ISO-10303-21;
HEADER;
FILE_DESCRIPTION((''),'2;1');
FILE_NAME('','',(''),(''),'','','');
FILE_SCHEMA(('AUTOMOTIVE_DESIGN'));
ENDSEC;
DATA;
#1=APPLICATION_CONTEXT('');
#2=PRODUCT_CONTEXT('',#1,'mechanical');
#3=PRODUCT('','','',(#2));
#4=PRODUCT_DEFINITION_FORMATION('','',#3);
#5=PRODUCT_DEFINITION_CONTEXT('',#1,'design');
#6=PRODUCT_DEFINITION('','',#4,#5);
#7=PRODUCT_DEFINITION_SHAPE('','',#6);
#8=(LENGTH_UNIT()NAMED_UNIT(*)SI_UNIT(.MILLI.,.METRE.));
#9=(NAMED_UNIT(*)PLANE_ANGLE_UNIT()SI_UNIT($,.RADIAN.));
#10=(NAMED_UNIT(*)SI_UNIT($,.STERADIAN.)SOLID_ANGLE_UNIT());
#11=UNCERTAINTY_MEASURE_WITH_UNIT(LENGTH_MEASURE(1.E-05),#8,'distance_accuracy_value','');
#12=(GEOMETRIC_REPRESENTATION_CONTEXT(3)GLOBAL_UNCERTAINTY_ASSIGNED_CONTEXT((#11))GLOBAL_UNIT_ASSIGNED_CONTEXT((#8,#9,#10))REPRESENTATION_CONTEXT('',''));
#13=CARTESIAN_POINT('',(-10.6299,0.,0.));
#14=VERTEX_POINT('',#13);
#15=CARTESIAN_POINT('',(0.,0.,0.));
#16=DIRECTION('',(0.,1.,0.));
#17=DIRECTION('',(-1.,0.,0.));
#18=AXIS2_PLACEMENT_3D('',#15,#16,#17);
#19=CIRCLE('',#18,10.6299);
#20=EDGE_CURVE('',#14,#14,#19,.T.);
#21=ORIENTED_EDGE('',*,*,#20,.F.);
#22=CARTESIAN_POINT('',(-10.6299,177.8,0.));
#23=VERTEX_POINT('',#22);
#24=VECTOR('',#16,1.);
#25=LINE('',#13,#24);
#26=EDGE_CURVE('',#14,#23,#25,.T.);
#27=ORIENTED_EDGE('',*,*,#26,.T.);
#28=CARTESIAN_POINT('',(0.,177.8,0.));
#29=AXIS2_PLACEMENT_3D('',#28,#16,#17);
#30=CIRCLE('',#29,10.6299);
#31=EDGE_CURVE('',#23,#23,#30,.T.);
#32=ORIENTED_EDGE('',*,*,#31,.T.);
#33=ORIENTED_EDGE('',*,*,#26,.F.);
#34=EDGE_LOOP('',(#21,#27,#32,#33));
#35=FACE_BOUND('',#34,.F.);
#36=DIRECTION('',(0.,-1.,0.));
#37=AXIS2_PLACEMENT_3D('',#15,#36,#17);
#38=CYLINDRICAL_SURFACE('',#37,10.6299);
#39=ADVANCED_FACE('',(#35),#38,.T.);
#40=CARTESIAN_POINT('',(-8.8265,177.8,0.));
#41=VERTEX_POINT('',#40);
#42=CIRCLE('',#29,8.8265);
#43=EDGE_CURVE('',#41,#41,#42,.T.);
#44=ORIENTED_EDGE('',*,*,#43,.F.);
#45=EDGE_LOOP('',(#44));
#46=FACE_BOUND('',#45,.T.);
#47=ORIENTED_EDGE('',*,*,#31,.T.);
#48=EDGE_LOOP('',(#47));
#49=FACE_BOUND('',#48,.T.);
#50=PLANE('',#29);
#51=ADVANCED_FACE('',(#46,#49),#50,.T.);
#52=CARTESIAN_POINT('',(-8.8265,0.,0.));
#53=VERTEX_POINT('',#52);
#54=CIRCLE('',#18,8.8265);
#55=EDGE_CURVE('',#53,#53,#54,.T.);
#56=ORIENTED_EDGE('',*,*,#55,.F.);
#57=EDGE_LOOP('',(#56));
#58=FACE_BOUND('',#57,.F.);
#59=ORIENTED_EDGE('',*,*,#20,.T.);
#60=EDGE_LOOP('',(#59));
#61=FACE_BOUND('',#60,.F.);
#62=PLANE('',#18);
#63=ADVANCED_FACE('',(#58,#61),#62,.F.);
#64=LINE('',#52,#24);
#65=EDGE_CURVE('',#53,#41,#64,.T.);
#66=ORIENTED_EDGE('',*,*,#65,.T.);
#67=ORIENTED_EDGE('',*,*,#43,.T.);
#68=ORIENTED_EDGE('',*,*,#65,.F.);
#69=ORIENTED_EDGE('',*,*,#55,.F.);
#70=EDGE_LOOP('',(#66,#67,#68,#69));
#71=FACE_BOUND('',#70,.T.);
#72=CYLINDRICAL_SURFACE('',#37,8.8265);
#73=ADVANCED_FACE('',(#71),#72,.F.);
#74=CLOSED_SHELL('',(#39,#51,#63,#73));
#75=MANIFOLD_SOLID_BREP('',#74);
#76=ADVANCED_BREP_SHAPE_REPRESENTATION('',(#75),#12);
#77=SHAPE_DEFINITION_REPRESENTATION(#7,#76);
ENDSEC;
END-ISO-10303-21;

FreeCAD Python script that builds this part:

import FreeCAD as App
import Part
import Sketcher
Q = App.Units.Quantity

doc = App.newDocument("Part")
body = doc.addObject("PartDesign::Body", "Body")

# Sketch on XZ plane
sketch1 = body.newObject("Sketcher::SketchObject", "Sketch")
sketch1.AttachmentSupport = (doc.getObject("XZ_Plane"), [""])
sketch1.MapMode = "FlatFace"
sketch1.addGeometry([
    Part.Circle(App.Vector(0, 0, 0), App.Vector(0, 0, 1), 11),
    Part.Circle(App.Vector(0, 0, 0), App.Vector(0, 0, 1), 9),
], False)
sketch1.addConstraint([
    Sketcher.Constraint("Coincident", 0, 3, -1, 1),
    Sketcher.Constraint("Coincident", 1, 3, -1, 1),
    Sketcher.Constraint("Diameter", 1, Q("0.695 in")),
    Sketcher.Constraint("Diameter", 0, Q("0.837 in")),
])
pad1 = body.newObject("PartDesign::Pad", "Pad")
pad1.Profile = sketch1
pad1.Length = Q("7 in")
pad1.Reversed = True

doc.recompute()
